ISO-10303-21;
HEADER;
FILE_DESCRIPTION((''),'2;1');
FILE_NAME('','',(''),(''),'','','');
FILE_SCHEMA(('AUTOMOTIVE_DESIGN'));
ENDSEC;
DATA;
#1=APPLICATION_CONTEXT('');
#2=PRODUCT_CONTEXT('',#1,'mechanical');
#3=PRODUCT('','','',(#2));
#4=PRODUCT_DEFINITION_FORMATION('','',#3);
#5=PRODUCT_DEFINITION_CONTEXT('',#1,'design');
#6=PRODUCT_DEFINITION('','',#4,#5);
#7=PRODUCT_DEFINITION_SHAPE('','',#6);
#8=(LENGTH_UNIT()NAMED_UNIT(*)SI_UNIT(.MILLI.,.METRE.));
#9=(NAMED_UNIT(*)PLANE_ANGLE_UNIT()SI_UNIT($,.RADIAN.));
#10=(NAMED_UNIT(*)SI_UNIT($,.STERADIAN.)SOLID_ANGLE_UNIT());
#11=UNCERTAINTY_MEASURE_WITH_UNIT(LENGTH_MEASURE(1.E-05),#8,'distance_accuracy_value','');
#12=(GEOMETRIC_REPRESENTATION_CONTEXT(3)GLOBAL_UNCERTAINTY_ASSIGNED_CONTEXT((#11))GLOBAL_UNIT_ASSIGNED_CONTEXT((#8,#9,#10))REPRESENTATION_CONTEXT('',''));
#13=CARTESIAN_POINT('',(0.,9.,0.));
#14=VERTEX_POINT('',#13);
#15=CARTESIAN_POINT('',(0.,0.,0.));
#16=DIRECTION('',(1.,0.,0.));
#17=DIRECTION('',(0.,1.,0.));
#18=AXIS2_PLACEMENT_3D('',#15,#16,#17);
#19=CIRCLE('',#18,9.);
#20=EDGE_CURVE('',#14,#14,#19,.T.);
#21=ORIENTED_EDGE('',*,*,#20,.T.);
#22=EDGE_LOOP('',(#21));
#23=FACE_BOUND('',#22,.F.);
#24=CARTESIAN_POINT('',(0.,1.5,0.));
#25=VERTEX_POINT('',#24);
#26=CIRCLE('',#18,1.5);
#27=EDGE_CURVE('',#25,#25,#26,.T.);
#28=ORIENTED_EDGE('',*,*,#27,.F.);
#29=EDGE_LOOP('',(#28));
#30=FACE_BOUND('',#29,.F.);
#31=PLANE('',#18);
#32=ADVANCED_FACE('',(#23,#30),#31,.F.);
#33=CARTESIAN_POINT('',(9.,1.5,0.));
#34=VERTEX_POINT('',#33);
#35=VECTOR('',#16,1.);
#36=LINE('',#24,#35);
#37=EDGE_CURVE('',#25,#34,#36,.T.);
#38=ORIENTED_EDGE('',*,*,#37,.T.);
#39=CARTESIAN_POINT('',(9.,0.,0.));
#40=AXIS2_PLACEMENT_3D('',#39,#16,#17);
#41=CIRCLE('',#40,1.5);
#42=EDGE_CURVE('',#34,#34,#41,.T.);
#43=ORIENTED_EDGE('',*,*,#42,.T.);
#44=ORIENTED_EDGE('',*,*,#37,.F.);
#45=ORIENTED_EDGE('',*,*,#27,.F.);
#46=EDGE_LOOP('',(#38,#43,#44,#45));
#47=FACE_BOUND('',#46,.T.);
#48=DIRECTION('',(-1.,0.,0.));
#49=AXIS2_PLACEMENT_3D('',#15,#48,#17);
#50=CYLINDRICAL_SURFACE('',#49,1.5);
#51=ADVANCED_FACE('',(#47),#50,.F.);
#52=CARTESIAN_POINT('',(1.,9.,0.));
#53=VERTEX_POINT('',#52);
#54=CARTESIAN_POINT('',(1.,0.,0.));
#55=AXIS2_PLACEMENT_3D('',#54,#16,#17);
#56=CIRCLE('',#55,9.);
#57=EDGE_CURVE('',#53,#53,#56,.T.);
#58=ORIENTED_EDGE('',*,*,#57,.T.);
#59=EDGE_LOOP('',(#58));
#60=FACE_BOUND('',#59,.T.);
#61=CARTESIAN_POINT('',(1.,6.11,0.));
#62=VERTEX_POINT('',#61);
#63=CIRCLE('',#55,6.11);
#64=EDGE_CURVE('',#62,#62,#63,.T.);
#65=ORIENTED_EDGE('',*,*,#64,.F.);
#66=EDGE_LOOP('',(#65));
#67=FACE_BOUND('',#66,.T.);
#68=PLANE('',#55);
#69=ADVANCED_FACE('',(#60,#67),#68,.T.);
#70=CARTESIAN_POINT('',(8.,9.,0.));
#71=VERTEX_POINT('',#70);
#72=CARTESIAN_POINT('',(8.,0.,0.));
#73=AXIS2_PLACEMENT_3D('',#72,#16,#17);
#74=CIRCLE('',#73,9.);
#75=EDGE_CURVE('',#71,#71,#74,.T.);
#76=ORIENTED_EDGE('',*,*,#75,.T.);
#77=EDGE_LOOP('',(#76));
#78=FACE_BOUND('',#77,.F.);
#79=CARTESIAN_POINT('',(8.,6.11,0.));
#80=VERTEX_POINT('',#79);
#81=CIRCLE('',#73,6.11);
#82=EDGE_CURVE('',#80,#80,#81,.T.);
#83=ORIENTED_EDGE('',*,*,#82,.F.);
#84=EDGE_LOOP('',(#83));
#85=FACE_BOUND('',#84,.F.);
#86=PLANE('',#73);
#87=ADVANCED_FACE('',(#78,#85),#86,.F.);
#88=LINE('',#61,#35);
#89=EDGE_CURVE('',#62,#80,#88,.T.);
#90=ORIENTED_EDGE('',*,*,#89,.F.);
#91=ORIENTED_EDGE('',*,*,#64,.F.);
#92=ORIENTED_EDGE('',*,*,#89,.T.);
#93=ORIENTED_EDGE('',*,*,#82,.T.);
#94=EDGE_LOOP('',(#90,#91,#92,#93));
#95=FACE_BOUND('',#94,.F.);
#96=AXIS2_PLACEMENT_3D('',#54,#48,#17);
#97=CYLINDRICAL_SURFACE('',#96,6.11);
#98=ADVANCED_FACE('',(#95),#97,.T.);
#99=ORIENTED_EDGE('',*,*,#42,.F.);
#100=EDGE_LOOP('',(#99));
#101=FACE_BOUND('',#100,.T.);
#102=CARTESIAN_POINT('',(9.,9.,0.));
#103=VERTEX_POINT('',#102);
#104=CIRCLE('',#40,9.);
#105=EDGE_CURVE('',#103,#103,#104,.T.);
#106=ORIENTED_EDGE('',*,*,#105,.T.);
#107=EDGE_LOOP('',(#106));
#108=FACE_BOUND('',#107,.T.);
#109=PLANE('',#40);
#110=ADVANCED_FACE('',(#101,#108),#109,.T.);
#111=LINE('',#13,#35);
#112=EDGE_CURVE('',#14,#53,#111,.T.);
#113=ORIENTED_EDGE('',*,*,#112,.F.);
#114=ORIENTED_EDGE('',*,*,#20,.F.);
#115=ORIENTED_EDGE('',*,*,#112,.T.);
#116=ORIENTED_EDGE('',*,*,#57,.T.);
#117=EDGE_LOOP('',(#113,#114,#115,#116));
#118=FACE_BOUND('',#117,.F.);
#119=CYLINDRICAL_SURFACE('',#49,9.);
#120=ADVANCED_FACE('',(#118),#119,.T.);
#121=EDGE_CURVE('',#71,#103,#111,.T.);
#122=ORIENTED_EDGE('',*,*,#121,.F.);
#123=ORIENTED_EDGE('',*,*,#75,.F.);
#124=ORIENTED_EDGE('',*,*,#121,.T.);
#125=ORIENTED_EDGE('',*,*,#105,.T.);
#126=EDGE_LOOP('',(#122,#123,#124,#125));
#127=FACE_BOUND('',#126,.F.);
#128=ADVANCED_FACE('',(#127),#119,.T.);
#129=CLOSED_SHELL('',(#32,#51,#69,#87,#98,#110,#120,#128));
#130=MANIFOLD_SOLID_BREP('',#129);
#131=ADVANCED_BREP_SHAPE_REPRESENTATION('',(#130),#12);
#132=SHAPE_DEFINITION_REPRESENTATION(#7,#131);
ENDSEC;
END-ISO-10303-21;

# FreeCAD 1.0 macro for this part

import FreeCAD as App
import Part
import Sketcher

doc = App.newDocument("Part")
body = doc.addObject("PartDesign::Body", "Body")

sketch1 = doc.addObject("Sketcher::SketchObject", "Sketch")
body.addObject(sketch1)
sketch1.AttachmentSupport = (doc.YZ_Plane, [""])
sketch1.MapMode = "FlatFace"
sketch1.addGeometry(Part.Circle(App.Vector(0, 0, 0), App.Vector(0, 0, 1), 9), False)
sketch1.addGeometry(Part.Circle(App.Vector(0, 0, 0), App.Vector(0, 0, 1), 1.5), False)
sketch1.addConstraint(Sketcher.Constraint("Coincident", 0, 3, -1, 1))
sketch1.addConstraint(Sketcher.Constraint("Coincident", 1, 3, -1, 1))
sketch1.addConstraint(Sketcher.Constraint("Diameter", 0, 18.0))
sketch1.addConstraint(Sketcher.Constraint("Diameter", 1, 3.0))
pad1 = doc.addObject("PartDesign::Pad", "Pad")
body.addObject(pad1)
pad1.Profile = sketch1
pad1.Length = 9

sketch2 = doc.addObject("Sketcher::SketchObject", "Sketch001")
body.addObject(sketch2)
sketch2.AttachmentSupport = (doc.YZ_Plane, [""])
sketch2.MapMode = "FlatFace"
sketch2.AttachmentOffset = App.Placement(App.Vector(0, 0, 1), App.Rotation())
sketch2.addGeometry(Part.Circle(App.Vector(0, 0, 0), App.Vector(0, 0, 1), 9), False)
sketch2.addGeometry(Part.Circle(App.Vector(0, 0, 0), App.Vector(0, 0, 1), 6), False)
sketch2.addConstraint(Sketcher.Constraint("Coincident", 0, 3, -1, 1))
sketch2.addConstraint(Sketcher.Constraint("Coincident", 1, 3, -1, 1))
sketch2.addConstraint(Sketcher.Constraint("Diameter", 0, 18.0))
sketch2.addConstraint(Sketcher.Constraint("Diameter", 1, 12.22))
pocket1 = doc.addObject("PartDesign::Pocket", "Pocket")
body.addObject(pocket1)
pocket1.Profile = sketch2
pocket1.Length = 7
pocket1.Reversed = True

doc.recompute()
